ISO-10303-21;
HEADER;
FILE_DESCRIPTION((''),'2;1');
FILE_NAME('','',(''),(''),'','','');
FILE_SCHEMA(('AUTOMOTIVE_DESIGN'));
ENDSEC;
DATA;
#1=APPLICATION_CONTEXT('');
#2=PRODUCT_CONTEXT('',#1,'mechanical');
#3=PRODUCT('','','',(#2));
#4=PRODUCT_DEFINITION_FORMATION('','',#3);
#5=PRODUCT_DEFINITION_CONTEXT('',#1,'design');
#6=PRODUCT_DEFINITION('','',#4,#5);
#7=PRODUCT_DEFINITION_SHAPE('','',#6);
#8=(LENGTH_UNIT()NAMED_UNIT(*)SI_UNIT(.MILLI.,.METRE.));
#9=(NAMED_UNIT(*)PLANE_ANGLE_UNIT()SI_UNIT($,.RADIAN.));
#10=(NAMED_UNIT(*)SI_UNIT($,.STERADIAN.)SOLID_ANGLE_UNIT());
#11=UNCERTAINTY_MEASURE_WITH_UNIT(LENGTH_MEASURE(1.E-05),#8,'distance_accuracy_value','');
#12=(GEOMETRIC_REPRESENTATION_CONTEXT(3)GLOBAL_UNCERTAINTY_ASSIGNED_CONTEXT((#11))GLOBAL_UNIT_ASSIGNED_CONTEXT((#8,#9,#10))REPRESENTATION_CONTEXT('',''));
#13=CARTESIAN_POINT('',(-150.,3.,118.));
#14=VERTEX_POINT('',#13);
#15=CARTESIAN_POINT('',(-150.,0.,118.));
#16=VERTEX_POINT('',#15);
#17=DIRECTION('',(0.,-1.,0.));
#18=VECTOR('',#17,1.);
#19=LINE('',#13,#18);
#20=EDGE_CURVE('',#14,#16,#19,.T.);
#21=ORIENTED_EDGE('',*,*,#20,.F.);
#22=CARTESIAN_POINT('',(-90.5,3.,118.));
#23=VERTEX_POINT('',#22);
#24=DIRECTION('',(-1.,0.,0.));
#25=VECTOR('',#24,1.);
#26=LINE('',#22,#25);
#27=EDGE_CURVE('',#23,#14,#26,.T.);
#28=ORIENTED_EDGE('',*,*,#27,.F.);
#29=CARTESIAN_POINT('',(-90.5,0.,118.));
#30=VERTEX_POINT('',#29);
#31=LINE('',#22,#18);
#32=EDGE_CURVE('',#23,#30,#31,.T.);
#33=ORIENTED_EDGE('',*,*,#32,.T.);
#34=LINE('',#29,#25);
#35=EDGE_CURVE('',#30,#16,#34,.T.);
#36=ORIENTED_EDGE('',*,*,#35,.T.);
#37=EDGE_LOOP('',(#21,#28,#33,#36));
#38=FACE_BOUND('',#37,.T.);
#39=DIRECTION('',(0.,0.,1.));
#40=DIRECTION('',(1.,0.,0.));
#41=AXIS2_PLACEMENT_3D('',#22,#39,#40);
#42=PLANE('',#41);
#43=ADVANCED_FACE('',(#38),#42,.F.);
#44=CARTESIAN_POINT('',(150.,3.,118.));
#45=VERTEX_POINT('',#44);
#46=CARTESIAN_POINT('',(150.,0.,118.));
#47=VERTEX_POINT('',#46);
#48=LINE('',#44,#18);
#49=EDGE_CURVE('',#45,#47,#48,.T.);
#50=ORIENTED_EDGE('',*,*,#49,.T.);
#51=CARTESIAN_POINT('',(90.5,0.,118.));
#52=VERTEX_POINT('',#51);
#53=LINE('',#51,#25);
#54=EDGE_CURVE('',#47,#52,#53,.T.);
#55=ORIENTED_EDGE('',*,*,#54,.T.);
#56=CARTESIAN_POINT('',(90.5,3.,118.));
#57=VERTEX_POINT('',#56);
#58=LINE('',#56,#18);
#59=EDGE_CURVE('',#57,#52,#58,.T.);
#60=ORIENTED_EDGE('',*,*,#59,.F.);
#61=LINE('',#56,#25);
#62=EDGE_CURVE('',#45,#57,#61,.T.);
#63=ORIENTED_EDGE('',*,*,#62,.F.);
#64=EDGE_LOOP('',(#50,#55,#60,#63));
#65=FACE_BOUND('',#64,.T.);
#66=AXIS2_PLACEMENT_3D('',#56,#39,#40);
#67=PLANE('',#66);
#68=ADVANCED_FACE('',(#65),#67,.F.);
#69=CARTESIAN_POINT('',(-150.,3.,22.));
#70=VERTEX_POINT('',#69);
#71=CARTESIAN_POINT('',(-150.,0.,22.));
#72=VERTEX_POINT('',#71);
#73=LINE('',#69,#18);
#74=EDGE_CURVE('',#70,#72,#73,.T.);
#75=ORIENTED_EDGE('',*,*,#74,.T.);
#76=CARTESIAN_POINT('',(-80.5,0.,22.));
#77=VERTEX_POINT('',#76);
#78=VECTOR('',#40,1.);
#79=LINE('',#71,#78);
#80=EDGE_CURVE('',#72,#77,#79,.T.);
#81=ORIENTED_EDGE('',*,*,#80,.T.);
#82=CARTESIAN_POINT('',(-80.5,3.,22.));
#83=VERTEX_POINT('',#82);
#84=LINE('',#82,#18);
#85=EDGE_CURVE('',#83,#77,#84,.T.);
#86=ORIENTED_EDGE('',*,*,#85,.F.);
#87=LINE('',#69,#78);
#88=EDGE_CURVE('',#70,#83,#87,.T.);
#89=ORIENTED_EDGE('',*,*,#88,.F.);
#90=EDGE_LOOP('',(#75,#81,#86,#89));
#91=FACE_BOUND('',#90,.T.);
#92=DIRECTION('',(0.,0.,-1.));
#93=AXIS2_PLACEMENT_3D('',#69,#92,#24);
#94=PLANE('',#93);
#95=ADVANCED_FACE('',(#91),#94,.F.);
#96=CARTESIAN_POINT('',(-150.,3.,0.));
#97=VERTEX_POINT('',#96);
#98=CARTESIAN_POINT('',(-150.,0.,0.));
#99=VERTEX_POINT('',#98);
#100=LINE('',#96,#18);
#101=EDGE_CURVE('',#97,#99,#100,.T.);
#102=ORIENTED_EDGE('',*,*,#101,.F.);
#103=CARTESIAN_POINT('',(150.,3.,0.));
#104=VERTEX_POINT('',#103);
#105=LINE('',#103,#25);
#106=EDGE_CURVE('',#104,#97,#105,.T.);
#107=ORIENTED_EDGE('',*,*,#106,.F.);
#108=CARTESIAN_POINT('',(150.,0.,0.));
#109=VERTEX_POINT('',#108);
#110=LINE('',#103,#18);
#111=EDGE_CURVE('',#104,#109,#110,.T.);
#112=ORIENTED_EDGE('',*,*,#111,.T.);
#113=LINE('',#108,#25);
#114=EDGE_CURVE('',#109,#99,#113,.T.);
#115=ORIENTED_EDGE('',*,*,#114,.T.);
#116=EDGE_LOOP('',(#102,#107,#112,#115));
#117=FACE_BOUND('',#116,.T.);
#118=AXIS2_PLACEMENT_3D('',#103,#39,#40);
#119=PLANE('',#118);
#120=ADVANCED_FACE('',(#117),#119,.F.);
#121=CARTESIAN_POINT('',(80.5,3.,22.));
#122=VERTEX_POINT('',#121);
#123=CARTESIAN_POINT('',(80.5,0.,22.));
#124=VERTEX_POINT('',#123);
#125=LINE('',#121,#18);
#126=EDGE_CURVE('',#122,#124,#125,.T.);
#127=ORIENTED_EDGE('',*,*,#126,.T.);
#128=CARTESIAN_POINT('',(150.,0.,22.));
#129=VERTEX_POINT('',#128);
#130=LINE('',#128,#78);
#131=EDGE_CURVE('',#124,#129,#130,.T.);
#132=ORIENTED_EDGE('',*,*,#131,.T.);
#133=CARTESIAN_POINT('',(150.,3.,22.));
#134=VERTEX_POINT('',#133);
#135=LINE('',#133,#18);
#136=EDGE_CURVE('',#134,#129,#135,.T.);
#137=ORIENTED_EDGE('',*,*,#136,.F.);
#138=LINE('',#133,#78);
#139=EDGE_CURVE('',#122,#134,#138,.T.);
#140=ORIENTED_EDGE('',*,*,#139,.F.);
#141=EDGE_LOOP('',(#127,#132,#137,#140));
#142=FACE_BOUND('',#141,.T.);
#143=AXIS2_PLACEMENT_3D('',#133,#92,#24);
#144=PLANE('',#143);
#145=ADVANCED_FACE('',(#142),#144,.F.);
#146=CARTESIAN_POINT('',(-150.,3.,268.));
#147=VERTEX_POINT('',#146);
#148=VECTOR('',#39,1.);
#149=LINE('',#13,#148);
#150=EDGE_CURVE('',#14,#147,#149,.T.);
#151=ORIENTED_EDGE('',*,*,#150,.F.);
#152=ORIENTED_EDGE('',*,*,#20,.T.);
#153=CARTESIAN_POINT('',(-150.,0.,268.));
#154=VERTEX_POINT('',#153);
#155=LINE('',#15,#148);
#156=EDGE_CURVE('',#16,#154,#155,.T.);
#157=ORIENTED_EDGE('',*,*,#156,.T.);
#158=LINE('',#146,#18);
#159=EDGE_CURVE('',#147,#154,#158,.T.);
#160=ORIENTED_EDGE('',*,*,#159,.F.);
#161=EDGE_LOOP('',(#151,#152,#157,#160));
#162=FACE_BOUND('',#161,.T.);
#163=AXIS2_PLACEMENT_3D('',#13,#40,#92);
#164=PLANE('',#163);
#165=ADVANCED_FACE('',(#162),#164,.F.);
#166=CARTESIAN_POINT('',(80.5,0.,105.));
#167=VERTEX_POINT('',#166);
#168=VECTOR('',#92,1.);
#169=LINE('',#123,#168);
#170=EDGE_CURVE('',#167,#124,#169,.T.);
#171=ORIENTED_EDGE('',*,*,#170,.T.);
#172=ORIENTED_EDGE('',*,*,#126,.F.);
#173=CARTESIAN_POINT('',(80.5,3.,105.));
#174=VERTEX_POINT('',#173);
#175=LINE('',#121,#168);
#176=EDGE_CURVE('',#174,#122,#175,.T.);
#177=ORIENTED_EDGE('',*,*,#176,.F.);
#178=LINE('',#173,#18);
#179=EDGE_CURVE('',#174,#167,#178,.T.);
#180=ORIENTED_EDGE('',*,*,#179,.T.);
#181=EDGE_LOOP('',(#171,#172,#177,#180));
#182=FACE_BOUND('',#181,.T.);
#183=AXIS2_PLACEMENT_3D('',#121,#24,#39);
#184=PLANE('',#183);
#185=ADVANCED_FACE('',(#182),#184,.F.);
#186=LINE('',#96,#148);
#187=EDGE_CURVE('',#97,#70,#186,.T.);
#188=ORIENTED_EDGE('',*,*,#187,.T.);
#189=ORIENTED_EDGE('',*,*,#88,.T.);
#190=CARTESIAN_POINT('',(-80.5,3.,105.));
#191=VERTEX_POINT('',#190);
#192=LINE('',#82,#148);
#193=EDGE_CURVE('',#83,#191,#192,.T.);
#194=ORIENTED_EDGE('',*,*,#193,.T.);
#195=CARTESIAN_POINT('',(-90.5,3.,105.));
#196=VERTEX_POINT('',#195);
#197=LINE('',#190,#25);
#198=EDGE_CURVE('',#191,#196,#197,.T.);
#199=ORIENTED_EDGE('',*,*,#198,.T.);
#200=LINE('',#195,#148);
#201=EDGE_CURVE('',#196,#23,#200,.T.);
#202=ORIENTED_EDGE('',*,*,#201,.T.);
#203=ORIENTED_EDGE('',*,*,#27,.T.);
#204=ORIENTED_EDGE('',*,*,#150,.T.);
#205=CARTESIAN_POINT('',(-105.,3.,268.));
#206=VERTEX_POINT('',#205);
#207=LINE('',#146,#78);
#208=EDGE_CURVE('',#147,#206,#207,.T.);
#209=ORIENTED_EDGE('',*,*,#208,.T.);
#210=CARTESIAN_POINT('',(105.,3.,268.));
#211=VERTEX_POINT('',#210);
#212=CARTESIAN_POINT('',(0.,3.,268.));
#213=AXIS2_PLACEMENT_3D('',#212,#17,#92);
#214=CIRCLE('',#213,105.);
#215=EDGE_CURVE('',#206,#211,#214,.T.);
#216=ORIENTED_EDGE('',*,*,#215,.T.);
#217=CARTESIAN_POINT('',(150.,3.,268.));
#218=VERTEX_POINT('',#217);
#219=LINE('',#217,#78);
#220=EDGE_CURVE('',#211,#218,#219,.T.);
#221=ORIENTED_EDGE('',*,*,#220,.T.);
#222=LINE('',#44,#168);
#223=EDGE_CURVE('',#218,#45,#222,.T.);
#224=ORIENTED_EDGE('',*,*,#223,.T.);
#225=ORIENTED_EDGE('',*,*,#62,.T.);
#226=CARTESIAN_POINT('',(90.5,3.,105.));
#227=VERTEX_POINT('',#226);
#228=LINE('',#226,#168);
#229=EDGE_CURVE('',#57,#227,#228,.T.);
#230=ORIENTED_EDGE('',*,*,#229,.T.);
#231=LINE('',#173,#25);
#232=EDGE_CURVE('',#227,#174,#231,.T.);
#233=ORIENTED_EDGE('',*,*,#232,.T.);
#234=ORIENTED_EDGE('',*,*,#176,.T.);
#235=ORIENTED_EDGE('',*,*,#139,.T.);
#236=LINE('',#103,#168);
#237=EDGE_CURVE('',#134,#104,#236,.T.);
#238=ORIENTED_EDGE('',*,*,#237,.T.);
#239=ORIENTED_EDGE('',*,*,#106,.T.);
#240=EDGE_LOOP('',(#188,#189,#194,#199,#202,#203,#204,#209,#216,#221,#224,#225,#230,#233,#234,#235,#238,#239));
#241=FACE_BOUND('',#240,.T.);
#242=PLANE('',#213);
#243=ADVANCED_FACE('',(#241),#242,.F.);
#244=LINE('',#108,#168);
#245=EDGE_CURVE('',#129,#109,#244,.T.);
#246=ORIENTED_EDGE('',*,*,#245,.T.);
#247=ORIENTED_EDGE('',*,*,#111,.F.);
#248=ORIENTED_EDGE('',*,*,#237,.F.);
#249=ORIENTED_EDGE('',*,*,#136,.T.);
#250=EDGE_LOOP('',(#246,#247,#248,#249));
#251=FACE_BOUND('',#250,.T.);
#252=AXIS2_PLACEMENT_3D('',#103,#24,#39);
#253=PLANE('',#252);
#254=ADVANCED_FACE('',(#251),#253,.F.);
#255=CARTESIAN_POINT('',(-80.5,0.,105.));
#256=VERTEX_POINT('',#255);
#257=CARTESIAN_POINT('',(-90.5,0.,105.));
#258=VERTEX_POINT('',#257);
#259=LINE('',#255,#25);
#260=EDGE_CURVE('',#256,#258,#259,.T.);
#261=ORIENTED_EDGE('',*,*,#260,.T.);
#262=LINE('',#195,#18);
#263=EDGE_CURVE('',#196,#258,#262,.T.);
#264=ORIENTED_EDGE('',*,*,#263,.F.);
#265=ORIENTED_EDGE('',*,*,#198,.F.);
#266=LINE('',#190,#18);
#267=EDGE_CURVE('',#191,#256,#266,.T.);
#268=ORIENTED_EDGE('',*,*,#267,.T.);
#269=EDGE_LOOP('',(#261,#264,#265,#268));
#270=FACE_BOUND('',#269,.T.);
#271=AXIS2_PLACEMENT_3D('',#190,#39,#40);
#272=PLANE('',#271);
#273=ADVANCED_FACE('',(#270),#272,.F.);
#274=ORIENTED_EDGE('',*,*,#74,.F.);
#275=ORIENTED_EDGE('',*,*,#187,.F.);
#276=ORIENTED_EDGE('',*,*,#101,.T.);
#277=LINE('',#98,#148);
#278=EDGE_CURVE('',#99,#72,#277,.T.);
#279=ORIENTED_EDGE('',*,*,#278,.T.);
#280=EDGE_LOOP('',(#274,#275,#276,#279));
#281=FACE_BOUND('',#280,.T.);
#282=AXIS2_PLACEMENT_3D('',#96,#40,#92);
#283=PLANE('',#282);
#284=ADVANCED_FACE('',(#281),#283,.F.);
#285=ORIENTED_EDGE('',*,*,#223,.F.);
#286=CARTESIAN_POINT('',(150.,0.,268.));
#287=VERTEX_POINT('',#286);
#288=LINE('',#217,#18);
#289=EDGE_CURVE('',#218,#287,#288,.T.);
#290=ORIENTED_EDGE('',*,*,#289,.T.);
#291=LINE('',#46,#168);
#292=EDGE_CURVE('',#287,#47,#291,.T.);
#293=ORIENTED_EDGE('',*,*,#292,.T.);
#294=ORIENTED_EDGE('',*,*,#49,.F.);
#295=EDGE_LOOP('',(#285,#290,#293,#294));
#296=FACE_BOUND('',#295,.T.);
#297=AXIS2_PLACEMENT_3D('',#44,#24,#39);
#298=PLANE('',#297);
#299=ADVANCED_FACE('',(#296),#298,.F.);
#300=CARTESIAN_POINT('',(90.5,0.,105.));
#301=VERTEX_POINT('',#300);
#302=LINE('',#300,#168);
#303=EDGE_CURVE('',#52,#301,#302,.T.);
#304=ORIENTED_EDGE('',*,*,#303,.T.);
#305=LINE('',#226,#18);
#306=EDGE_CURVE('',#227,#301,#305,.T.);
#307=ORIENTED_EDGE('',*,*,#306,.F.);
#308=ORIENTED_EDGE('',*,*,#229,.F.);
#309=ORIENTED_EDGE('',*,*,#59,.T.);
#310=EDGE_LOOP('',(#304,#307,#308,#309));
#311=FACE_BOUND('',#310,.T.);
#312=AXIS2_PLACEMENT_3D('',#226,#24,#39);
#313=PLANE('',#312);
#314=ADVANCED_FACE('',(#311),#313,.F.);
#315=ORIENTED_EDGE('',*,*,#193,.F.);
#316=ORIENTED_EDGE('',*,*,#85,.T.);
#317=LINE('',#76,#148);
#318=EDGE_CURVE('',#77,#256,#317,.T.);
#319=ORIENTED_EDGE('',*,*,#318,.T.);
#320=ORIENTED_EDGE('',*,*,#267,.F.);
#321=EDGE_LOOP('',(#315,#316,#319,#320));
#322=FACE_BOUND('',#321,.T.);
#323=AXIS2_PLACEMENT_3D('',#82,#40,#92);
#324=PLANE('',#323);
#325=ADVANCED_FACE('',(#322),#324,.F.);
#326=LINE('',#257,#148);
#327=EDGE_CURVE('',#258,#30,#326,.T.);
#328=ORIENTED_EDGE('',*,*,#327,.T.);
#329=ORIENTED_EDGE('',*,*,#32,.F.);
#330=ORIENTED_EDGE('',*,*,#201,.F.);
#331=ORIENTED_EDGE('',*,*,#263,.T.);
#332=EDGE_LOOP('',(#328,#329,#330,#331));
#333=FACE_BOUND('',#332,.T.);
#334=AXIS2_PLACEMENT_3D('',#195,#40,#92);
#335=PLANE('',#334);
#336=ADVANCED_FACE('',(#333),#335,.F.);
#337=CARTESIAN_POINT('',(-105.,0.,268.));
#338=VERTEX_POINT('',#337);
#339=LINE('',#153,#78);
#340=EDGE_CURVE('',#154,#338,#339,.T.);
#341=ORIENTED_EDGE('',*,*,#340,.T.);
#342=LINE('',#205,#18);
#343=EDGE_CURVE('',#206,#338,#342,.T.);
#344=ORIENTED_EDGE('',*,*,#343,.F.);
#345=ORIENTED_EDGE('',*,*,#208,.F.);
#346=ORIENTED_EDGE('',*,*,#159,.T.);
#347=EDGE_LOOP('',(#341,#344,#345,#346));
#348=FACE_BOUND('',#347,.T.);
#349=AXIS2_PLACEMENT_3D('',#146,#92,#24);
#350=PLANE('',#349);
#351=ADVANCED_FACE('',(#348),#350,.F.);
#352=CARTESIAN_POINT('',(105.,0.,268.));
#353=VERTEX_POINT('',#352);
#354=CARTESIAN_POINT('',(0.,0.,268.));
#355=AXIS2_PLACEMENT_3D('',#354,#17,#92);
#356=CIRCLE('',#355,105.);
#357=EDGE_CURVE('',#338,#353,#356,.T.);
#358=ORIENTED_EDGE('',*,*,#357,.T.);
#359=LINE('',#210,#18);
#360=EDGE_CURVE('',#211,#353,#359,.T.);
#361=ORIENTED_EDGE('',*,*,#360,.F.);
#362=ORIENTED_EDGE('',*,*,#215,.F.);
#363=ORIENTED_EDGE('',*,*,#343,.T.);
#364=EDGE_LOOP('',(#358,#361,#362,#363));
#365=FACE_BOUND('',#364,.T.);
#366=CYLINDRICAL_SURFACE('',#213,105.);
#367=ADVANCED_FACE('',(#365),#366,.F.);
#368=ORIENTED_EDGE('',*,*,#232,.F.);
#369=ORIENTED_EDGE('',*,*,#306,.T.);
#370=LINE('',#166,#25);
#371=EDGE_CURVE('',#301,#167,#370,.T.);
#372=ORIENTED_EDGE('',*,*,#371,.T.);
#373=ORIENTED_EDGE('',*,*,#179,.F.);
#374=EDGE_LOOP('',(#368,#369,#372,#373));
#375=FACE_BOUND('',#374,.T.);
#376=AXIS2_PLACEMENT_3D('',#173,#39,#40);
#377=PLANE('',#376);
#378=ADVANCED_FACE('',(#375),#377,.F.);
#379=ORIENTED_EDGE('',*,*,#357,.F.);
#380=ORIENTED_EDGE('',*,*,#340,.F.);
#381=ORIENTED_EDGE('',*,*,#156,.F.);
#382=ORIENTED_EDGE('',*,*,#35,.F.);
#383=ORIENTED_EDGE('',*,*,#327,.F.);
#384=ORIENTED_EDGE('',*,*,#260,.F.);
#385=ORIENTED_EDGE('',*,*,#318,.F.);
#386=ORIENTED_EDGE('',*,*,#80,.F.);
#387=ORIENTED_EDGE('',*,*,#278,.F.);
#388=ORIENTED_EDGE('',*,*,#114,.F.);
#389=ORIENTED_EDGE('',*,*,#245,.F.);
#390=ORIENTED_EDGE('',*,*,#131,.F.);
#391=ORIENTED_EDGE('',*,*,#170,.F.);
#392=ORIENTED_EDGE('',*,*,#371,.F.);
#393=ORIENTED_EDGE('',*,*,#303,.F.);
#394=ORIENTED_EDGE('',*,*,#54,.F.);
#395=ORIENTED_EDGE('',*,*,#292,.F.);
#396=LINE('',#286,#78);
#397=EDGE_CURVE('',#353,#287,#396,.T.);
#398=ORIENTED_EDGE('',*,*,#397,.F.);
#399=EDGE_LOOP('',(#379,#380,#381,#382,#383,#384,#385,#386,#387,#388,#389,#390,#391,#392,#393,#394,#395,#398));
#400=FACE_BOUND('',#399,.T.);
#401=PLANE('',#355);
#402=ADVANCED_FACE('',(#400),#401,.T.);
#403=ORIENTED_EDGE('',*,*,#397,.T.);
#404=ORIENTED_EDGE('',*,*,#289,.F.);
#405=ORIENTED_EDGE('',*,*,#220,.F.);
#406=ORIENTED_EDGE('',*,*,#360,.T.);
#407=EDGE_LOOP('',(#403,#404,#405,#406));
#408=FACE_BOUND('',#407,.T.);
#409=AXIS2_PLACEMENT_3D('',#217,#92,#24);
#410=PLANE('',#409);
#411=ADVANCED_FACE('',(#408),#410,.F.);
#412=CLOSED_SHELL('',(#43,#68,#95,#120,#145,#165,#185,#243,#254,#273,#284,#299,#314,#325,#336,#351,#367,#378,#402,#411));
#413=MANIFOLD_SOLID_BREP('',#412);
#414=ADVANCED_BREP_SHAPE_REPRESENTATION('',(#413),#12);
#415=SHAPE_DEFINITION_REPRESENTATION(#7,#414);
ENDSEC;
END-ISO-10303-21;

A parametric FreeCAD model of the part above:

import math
import FreeCAD as App
import Part
import Sketcher

V = App.Vector
Q = App.Units.Quantity

doc = App.newDocument("Part")
body = doc.addObject("PartDesign::Body", "Body")

# Sketch on XZ plane
sketch1 = body.newObject("Sketcher::SketchObject", "Sketch")
sketch1.AttachmentSupport = (doc.getObject("XZ_Plane"), [""])
sketch1.MapMode = "FlatFace"
sketch1.addGeometry([
    Part.LineSegment(V(150, 0, 0), V(-150, 0, 0)),  # 0
    Part.LineSegment(V(-150, 0, 0), V(-150, 22, 0)),  # 1
    Part.LineSegment(V(-150, 22, 0), V(-80, 22, 0)),  # 2
    Part.LineSegment(V(-80, 22, 0), V(-80, 105, 0)),  # 3
    Part.LineSegment(V(-80, 105, 0), V(-90, 105, 0)),  # 4
    Part.LineSegment(V(-90, 105, 0), V(-90, 118, 0)),  # 5
    Part.LineSegment(V(-90, 118, 0), V(-150, 118, 0)),  # 6
    Part.LineSegment(V(-150, 118, 0), V(-150, 268, 0)),  # 7
    Part.LineSegment(V(-150, 268, 0), V(-105, 268, 0)),  # 8
    Part.ArcOfCircle(Part.Circle(V(0, 268, 0), V(0, 0, 1), 105), math.radians(180), math.radians(360)),  # 9
    Part.LineSegment(V(105, 268, 0), V(150, 268, 0)),  # 10
    Part.LineSegment(V(150, 268, 0), V(150, 118, 0)),  # 11
    Part.LineSegment(V(150, 118, 0), V(90, 118, 0)),  # 12
    Part.LineSegment(V(90, 118, 0), V(90, 105, 0)),  # 13
    Part.LineSegment(V(90, 105, 0), V(80, 105, 0)),  # 14
    Part.LineSegment(V(80, 105, 0), V(80, 22, 0)),  # 15
    Part.LineSegment(V(80, 22, 0), V(150, 22, 0)),  # 16
    Part.LineSegment(V(150, 22, 0), V(150, 0, 0)),  # 17
], False)
sketch1.addConstraint([
    Sketcher.Constraint("Coincident", 0, 2, 1, 1),
    Sketcher.Constraint("Coincident", 1, 2, 2, 1),
    Sketcher.Constraint("Coincident", 2, 2, 3, 1),
    Sketcher.Constraint("Coincident", 3, 2, 4, 1),
    Sketcher.Constraint("Coincident", 4, 2, 5, 1),
    Sketcher.Constraint("Coincident", 5, 2, 6, 1),
    Sketcher.Constraint("Coincident", 6, 2, 7, 1),
    Sketcher.Constraint("Coincident", 7, 2, 8, 1),
    Sketcher.Constraint("Coincident", 8, 2, 9, 1),
    Sketcher.Constraint("Coincident", 9, 2, 10, 1),
    Sketcher.Constraint("Coincident", 10, 2, 11, 1),
    Sketcher.Constraint("Coincident", 11, 2, 12, 1),
    Sketcher.Constraint("Coincident", 12, 2, 13, 1),
    Sketcher.Constraint("Coincident", 13, 2, 14, 1),
    Sketcher.Constraint("Coincident", 14, 2, 15, 1),
    Sketcher.Constraint("Coincident", 15, 2, 16, 1),
    Sketcher.Constraint("Coincident", 16, 2, 17, 1),
    Sketcher.Constraint("Coincident", 17, 2, 0, 1),
    Sketcher.Constraint("Horizontal", 0),
    Sketcher.Constraint("Vertical", 1),
    Sketcher.Constraint("Horizontal", 2),
    Sketcher.Constraint("Vertical", 3),
    Sketcher.Constraint("Horizontal", 4),
    Sketcher.Constraint("Vertical", 5),
    Sketcher.Constraint("Horizontal", 6),
    Sketcher.Constraint("Vertical", 7),
    Sketcher.Constraint("Horizontal", 8),
    Sketcher.Constraint("Horizontal", 10),
    Sketcher.Constraint("Vertical", 11),
    Sketcher.Constraint("Horizontal", 12),
    Sketcher.Constraint("Vertical", 13),
    Sketcher.Constraint("Horizontal", 14),
    Sketcher.Constraint("Vertical", 15),
    Sketcher.Constraint("Horizontal", 16),
    Sketcher.Constraint("Vertical", 17),
    Sketcher.Constraint("Symmetric", 0, 2, 17, 2, -1, 1),
    Sketcher.Constraint("Symmetric", 8, 2, 9, 2, -2),
    Sketcher.Constraint("Symmetric", 6, 2, 11, 2, -2),
    Sketcher.Constraint("Symmetric", 4, 2, 13, 2, -2),
    Sketcher.Constraint("Symmetric", 2, 2, 15, 2, -2),
    Sketcher.Constraint("Horizontal", 9, 3, 7, 2),
    Sketcher.Constraint("Vertical", 1, 2, 6, 2),
    Sketcher.Constraint("Radius", 9, Q("105 mm")),
    Sketcher.Constraint("DistanceX", 0, 2, 0, 1, Q("300 mm")),
    Sketcher.Constraint("DistanceX", 4, 2, 4, 1, Q("10 mm")),
    Sketcher.Constraint("DistanceY", 1, 1, 1, 2, Q("22 mm")),
    Sketcher.Constraint("DistanceY", 3, 1, 3, 2, Q("83 mm")),
    Sketcher.Constraint("DistanceY", 5, 1, 5, 2, Q("13 mm")),
    Sketcher.Constraint("DistanceY", 7, 1, 7, 2, Q("150 mm")),
    Sketcher.Constraint("DistanceX", 2, 1, 2, 2, Q("69.5 mm")),
])
pad1 = body.newObject("PartDesign::Pad", "Pad")
pad1.Profile = sketch1
pad1.Length = 3
pad1.Reversed = True

doc.recompute()
